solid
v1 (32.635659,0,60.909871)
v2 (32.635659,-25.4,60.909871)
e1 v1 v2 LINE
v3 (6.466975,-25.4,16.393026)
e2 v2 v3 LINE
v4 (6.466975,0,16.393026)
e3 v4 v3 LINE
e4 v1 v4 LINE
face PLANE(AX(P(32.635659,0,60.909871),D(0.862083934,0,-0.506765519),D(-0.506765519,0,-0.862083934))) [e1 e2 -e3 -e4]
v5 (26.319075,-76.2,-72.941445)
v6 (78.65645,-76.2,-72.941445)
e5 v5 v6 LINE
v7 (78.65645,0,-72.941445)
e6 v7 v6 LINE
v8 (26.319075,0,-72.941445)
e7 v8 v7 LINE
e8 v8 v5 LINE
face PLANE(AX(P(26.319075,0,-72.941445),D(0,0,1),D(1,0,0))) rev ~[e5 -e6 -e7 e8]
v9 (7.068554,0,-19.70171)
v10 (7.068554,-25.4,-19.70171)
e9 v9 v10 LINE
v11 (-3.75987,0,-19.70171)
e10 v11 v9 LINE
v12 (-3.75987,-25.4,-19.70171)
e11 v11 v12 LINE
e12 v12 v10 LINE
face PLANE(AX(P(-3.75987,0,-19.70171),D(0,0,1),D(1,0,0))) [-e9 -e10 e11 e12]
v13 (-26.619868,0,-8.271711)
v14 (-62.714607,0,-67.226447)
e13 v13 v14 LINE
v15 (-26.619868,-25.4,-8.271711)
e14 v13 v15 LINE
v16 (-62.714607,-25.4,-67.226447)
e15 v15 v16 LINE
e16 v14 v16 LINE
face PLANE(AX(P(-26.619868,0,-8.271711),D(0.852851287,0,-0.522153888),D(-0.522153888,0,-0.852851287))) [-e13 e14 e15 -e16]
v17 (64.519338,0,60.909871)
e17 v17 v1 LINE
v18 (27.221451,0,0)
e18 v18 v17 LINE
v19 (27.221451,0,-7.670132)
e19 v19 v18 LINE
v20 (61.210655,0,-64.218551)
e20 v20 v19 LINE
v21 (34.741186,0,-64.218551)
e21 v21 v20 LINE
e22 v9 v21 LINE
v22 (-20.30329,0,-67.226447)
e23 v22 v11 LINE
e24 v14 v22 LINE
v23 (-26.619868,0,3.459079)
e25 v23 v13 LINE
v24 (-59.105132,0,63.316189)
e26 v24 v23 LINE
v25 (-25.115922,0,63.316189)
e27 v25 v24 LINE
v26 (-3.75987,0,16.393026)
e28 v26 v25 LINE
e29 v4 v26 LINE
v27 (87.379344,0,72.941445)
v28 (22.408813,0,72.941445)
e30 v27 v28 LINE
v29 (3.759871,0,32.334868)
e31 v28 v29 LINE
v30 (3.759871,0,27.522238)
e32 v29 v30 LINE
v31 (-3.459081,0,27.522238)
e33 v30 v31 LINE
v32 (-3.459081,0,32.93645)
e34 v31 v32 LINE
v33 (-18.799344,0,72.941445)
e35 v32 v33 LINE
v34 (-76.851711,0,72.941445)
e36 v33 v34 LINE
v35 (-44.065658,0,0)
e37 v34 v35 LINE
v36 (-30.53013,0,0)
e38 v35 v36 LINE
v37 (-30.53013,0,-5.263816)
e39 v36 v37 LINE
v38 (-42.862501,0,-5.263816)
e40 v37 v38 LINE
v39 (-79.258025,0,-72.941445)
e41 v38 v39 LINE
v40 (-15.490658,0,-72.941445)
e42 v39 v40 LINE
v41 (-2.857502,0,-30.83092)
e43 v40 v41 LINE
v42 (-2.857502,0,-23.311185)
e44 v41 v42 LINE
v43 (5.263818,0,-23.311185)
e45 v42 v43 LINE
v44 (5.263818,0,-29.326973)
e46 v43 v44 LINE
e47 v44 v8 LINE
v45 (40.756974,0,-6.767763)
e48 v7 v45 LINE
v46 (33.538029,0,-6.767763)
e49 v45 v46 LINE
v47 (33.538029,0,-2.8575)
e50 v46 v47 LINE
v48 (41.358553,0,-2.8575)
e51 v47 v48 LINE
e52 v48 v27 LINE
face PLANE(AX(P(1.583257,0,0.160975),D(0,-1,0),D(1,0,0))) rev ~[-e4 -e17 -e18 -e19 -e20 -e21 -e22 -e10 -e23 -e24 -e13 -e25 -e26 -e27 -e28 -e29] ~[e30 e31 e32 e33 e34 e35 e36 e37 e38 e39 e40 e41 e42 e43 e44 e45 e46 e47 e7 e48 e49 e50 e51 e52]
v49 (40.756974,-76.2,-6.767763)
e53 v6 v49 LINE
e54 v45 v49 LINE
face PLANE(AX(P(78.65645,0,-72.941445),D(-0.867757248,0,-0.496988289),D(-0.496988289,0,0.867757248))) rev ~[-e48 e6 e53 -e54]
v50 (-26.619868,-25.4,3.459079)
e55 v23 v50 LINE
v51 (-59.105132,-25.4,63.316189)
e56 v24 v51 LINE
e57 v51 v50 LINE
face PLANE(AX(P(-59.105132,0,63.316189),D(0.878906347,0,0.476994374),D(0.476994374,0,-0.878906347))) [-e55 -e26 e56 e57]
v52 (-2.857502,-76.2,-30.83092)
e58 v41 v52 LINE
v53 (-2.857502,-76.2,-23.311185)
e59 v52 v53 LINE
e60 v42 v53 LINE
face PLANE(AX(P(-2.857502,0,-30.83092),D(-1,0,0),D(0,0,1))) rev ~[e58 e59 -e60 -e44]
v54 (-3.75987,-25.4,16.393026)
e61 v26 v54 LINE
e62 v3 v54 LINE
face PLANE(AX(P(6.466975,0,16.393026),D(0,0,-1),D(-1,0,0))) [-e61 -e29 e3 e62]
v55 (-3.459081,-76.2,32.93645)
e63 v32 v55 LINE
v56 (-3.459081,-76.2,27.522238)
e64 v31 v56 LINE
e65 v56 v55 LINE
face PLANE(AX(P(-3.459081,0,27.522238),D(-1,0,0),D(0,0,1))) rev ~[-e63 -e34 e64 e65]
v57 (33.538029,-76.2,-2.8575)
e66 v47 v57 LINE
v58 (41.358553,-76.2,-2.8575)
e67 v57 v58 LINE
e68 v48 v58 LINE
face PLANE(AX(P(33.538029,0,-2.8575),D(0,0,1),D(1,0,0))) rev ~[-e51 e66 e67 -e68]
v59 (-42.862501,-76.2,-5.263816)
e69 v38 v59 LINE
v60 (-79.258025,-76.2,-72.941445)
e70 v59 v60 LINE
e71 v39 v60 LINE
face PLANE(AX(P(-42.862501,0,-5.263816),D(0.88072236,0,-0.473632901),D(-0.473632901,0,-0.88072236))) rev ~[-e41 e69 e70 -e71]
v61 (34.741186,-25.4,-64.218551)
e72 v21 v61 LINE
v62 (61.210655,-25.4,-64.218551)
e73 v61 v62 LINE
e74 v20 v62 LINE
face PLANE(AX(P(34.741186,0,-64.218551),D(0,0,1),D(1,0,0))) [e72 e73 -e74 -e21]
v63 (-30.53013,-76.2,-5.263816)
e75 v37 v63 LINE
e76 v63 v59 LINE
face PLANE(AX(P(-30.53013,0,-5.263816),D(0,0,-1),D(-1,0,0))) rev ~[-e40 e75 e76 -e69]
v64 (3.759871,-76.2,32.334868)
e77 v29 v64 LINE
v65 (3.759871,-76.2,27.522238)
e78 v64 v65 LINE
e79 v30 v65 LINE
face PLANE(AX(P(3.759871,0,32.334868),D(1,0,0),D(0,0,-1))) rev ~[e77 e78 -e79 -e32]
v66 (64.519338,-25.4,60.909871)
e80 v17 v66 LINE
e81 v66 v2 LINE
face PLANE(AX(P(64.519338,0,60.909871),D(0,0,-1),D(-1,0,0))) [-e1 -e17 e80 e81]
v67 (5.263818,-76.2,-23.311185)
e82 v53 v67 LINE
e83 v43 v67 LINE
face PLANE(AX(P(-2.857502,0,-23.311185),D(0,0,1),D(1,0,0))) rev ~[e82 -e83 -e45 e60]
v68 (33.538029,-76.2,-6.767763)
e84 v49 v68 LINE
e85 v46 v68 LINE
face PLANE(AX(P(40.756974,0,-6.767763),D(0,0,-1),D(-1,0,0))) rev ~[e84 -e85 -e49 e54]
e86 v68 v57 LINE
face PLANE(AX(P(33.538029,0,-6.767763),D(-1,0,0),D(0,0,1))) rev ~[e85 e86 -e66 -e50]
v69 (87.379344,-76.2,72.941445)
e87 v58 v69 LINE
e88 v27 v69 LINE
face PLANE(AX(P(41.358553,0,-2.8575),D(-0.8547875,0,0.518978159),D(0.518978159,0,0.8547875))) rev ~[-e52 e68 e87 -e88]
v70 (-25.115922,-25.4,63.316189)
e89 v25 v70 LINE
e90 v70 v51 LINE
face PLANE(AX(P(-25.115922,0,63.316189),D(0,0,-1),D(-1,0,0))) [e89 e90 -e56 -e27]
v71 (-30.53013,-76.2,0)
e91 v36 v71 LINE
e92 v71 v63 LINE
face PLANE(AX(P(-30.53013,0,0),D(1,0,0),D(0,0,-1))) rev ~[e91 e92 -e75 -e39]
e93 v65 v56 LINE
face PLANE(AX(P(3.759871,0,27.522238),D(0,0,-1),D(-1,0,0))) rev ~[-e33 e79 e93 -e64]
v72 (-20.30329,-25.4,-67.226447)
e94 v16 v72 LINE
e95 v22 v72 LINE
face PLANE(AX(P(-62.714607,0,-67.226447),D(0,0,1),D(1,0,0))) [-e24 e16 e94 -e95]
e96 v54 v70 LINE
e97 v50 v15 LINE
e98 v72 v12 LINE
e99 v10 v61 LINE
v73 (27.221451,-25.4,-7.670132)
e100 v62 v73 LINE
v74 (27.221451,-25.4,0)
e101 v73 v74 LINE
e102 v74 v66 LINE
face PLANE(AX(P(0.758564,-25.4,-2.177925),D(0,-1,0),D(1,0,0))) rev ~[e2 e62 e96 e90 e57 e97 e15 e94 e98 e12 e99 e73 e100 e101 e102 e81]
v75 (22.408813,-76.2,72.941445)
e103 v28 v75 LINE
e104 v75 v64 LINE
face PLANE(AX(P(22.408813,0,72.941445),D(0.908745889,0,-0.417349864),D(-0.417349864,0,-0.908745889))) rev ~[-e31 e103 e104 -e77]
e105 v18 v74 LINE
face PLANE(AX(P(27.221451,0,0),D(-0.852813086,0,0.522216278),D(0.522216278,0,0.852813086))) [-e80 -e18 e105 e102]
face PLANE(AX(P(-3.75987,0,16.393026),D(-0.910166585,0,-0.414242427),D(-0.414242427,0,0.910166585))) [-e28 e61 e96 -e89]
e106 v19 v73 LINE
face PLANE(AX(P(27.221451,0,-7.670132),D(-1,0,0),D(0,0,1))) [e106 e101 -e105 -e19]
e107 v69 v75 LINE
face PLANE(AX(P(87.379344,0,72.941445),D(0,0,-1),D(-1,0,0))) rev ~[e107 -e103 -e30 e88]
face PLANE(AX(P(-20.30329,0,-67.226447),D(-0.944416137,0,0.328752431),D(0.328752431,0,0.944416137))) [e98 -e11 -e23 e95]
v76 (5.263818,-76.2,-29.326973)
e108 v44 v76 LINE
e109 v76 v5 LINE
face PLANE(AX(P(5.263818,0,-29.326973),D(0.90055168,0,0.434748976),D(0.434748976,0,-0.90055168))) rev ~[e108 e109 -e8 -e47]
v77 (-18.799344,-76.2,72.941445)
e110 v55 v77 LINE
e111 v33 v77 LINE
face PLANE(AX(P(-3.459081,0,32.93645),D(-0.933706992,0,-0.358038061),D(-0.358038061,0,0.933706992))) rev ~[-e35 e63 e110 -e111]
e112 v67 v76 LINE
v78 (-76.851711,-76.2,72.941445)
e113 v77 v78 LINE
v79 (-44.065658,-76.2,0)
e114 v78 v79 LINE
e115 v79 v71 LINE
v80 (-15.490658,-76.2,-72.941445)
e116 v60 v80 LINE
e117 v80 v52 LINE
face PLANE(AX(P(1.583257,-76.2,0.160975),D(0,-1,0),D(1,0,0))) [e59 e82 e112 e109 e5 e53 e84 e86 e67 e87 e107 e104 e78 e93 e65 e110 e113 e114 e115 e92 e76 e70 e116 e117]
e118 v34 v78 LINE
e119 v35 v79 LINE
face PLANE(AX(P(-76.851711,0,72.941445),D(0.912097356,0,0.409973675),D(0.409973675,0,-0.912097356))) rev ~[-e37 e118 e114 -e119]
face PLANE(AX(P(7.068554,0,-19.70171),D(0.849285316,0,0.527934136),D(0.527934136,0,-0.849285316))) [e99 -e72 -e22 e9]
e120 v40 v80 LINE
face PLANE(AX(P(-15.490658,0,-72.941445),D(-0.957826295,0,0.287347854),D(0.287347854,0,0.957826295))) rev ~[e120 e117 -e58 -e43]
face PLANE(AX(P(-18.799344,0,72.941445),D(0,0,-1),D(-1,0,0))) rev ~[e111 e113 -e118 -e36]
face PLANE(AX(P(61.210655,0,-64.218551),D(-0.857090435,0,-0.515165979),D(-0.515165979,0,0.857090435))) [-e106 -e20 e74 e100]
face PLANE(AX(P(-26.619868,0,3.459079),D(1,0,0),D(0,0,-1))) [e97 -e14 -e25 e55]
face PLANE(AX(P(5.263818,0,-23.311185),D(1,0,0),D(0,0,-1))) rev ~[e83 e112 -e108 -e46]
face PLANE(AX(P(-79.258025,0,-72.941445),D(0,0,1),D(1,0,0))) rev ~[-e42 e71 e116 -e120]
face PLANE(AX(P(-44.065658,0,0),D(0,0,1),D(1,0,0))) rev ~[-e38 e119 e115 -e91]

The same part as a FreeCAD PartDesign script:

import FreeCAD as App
import Part
import Sketcher
from FreeCAD import Vector
Q = App.Units.Quantity

doc = App.newDocument("Part")
body = doc.addObject("PartDesign::Body", "Body")

# Sketch on XZ plane
sketch1 = body.newObject("Sketcher::SketchObject", "Sketch")
sketch1.AttachmentSupport = (doc.getObject("XZ_Plane"), [""])
sketch1.MapMode = "FlatFace"
sketch1.addGeometry([
    Part.LineSegment(Vector(-18.8, 72.9, 0), Vector(-76.9, 72.9, 0)),  # 0
    Part.LineSegment(Vector(-76.9, 72.9, 0), Vector(-44.1, 0, 0)),  # 1
    Part.LineSegment(Vector(-44.1, 0, 0), Vector(-30.5, 0, 0)),  # 2
    Part.LineSegment(Vector(-30.5, 0, 0), Vector(-30.5, -5.3, 0)),  # 3
    Part.LineSegment(Vector(-30.5, -5.3, 0), Vector(-42.9, -5.3, 0)),  # 4
    Part.LineSegment(Vector(-42.9, -5.3, 0), Vector(-79.3, -72.9, 0)),  # 5
    Part.LineSegment(Vector(-79.3, -72.9, 0), Vector(-15.5, -72.9, 0)),  # 6
    Part.LineSegment(Vector(-15.5, -72.9, 0), Vector(-2.9, -30.8, 0)),  # 7
    Part.LineSegment(Vector(-2.9, -30.8, 0), Vector(-2.9, -23.3, 0)),  # 8
    Part.LineSegment(Vector(-2.9, -23.3, 0), Vector(5.3, -23.3, 0)),  # 9
    Part.LineSegment(Vector(5.3, -23.3, 0), Vector(5.3, -29.3, 0)),  # 10
    Part.LineSegment(Vector(5.3, -29.3, 0), Vector(26.3, -72.9, 0)),  # 11
    Part.LineSegment(Vector(26.3, -72.9, 0), Vector(78.7, -72.9, 0)),  # 12
    Part.LineSegment(Vector(78.7, -72.9, 0), Vector(40.8, -6.8, 0)),  # 13
    Part.LineSegment(Vector(40.8, -6.8, 0), Vector(33.5, -6.8, 0)),  # 14
    Part.LineSegment(Vector(33.5, -6.8, 0), Vector(33.5, -2.9, 0)),  # 15
    Part.LineSegment(Vector(33.5, -2.9, 0), Vector(41.4, -2.9, 0)),  # 16
    Part.LineSegment(Vector(41.4, -2.9, 0), Vector(87.4, 72.9, 0)),  # 17
    Part.LineSegment(Vector(87.4, 72.9, 0), Vector(22.4, 72.9, 0)),  # 18
    Part.LineSegment(Vector(22.4, 72.9, 0), Vector(3.8, 32.3, 0)),  # 19
    Part.LineSegment(Vector(3.8, 32.3, 0), Vector(3.8, 27.5, 0)),  # 20
    Part.LineSegment(Vector(3.8, 27.5, 0), Vector(-3.5, 27.5, 0)),  # 21
    Part.LineSegment(Vector(-3.5, 27.5, 0), Vector(-3.5, 32.9, 0)),  # 22
    Part.LineSegment(Vector(-3.5, 32.9, 0), Vector(-18.8, 72.9, 0)),  # 23
], False)
sketch1.addConstraint([
    Sketcher.Constraint("Coincident", 0, 2, 1, 1),
    Sketcher.Constraint("Coincident", 1, 2, 2, 1),
    Sketcher.Constraint("Coincident", 2, 2, 3, 1),
    Sketcher.Constraint("Coincident", 3, 2, 4, 1),
    Sketcher.Constraint("Coincident", 4, 2, 5, 1),
    Sketcher.Constraint("Coincident", 5, 2, 6, 1),
    Sketcher.Constraint("Coincident", 6, 2, 7, 1),
    Sketcher.Constraint("Coincident", 7, 2, 8, 1),
    Sketcher.Constraint("Coincident", 8, 2, 9, 1),
    Sketcher.Constraint("Coincident", 9, 2, 10, 1),
    Sketcher.Constraint("Coincident", 10, 2, 11, 1),
    Sketcher.Constraint("Coincident", 11, 2, 12, 1),
    Sketcher.Constraint("Coincident", 12, 2, 13, 1),
    Sketcher.Constraint("Coincident", 13, 2, 14, 1),
    Sketcher.Constraint("Coincident", 14, 2, 15, 1),
    Sketcher.Constraint("Coincident", 15, 2, 16, 1),
    Sketcher.Constraint("Coincident", 16, 2, 17, 1),
    Sketcher.Constraint("Coincident", 17, 2, 18, 1),
    Sketcher.Constraint("Coincident", 18, 2, 19, 1),
    Sketcher.Constraint("Coincident", 19, 2, 20, 1),
    Sketcher.Constraint("Coincident", 20, 2, 21, 1),
    Sketcher.Constraint("Coincident", 21, 2, 22, 1),
    Sketcher.Constraint("Coincident", 22, 2, 23, 1),
    Sketcher.Constraint("Coincident", 23, 2, 0, 1),
    Sketcher.Constraint("Horizontal", 0),
    Sketcher.Constraint("Horizontal", 2),
    Sketcher.Constraint("Vertical", 3),
    Sketcher.Constraint("Horizontal", 4),
    Sketcher.Constraint("Horizontal", 6),
    Sketcher.Constraint("Vertical", 8),
    Sketcher.Constraint("Horizontal", 9),
    Sketcher.Constraint("Vertical", 10),
    Sketcher.Constraint("Horizontal", 12),
    Sketcher.Constraint("Horizontal", 14),
    Sketcher.Constraint("Vertical", 15),
    Sketcher.Constraint("Horizontal", 16),
    Sketcher.Constraint("Horizontal", 18),
    Sketcher.Constraint("Vertical", 20),
    Sketcher.Constraint("Horizontal", 21),
    Sketcher.Constraint("Vertical", 22),
    Sketcher.Constraint("PointOnObject", 1, 2, -1),
    Sketcher.Constraint("Horizontal", 6, 2, 11, 2),
    Sketcher.Constraint("Horizontal", 0, 2, 17, 2),
    Sketcher.Constraint("DistanceX", 2, 2, 19, 2, Q("1.35 in")),
    Sketcher.Constraint("DistanceY", 14, 2, 20, 2, Q("1.35 in")),
    Sketcher.Constraint("DistanceX", 4, 2, -1, 1, Q("1.6875 in")),
    Sketcher.Constraint("DistanceX", 1, 2, 6, 2, Q("1.125 in")),
    Sketcher.Constraint("DistanceX", 4, 2, 7, 2, Q("1.575 in")),
    Sketcher.Constraint("DistanceY", 22, 2, 23, 2, Q("1.5749998 in")),
    Sketcher.Constraint("DistanceY", 15, 2, -1, 1, Q("0.1125 in")),
    Sketcher.Constraint("DistanceX", 4, 2, 4, 1, Q("12.332371 mm")),
    Sketcher.Constraint("DistanceX", 9, 1, 9, 2, Q("8.12132 mm")),
    Sketcher.Constraint("DistanceX", 18, 2, 18, 1, Q("64.970531 mm")),
    Sketcher.Constraint("DistanceX", 21, 2, 21, 1, Q("7.218952 mm")),
    Sketcher.Constraint("DistanceY", 10, 2, 10, 1, Q("6.015788 mm")),
    Sketcher.Constraint("DistanceY", 20, 2, 20, 1, Q("4.81263 mm")),
    Sketcher.Constraint("DistanceY", 22, 1, 22, 2, Q("5.414212 mm")),
    Sketcher.Constraint("DistanceX", 11, 2, 13, 2, Q("14.437899 mm")),
    Sketcher.Constraint("Distance", 5, Q("76.843319 mm")),
    Sketcher.Constraint("Distance", 7, Q("43.964678 mm")),
    Sketcher.Constraint("Distance", 23, Q("42.845342 mm")),
    Sketcher.Constraint("DistanceX", 0, 2, 0, 1, Q("58.052367 mm")),
    Sketcher.Constraint("DistanceX", 2, 1, 2, 2, Q("13.535528 mm")),
    Sketcher.Constraint("DistanceX", 6, 1, 6, 2, Q("63.767367 mm")),
    Sketcher.Constraint("DistanceX", 12, 1, 12, 2, Q("52.337375 mm")),
    Sketcher.Constraint("DistanceX", 14, 2, 14, 1, Q("7.218945 mm")),
    Sketcher.Constraint("DistanceX", 16, 1, 16, 2, Q("7.820524 mm")),
    Sketcher.Constraint("DistanceY", 3, 2, 3, 1, Q("5.263816 mm")),
    Sketcher.Constraint("DistanceY", 8, 1, 8, 2, Q("7.519735 mm")),
    Sketcher.Constraint("DistanceY", 15, 1, 15, 2, Q("3.910263 mm")),
    Sketcher.Constraint("DistanceX", -1, 1, 12, 2, Q("78.65645 mm")),
    Sketcher.Constraint("DistanceX", 16, 2, 17, 2, Q("46.020791 mm")),
])
pad1 = body.newObject("PartDesign::Pad", "Pad")
pad1.Profile = sketch1
pad1.Length = Q("3 in")

# Sketch on XZ plane
sketch2 = body.newObject("Sketcher::SketchObject", "Sketch001")
sketch2.AttachmentSupport = (doc.getObject("XZ_Plane"), [""])
sketch2.MapMode = "FlatFace"
sketch2.addGeometry([
    Part.LineSegment(Vector(-25, 63, 0), Vector(-59, 63, 0)),  # 0
    Part.LineSegment(Vector(-59, 63, 0), Vector(-27, 3, 0)),  # 1
    Part.LineSegment(Vector(-27, 3, 0), Vector(-27, -8, 0)),  # 2
    Part.LineSegment(Vector(-27, -8, 0), Vector(-63, -67, 0)),  # 3
    Part.LineSegment(Vector(-63, -67, 0), Vector(-20, -67, 0)),  # 4
    Part.LineSegment(Vector(-20, -67, 0), Vector(-4, -20, 0)),  # 5
    Part.LineSegment(Vector(-4, -20, 0), Vector(7, -20, 0)),  # 6
    Part.LineSegment(Vector(7, -20, 0), Vector(35, -64, 0)),  # 7
    Part.LineSegment(Vector(35, -64, 0), Vector(61, -64, 0)),  # 8
    Part.LineSegment(Vector(61, -64, 0), Vector(27, -8, 0)),  # 9
    Part.LineSegment(Vector(27, -8, 0), Vector(27, 0, 0)),  # 10
    Part.LineSegment(Vector(27, 0, 0), Vector(65, 61, 0)),  # 11
    Part.LineSegment(Vector(65, 61, 0), Vector(33, 61, 0)),  # 12
    Part.LineSegment(Vector(33, 61, 0), Vector(6, 16, 0)),  # 13
    Part.LineSegment(Vector(6, 16, 0), Vector(-4, 16, 0)),  # 14
    Part.LineSegment(Vector(-4, 16, 0), Vector(-25, 63, 0)),  # 15
], False)
sketch2.addConstraint([
    Sketcher.Constraint("Coincident", 0, 2, 1, 1),
    Sketcher.Constraint("Coincident", 1, 2, 2, 1),
    Sketcher.Constraint("Coincident", 2, 2, 3, 1),
    Sketcher.Constraint("Coincident", 3, 2, 4, 1),
    Sketcher.Constraint("Coincident", 4, 2, 5, 1),
    Sketcher.Constraint("Coincident", 5, 2, 6, 1),
    Sketcher.Constraint("Coincident", 6, 2, 7, 1),
    Sketcher.Constraint("Coincident", 7, 2, 8, 1),
    Sketcher.Constraint("Coincident", 8, 2, 9, 1),
    Sketcher.Constraint("Coincident", 9, 2, 10, 1),
    Sketcher.Constraint("Coincident", 10, 2, 11, 1),
    Sketcher.Constraint("Coincident", 11, 2, 12, 1),
    Sketcher.Constraint("Coincident", 12, 2, 13, 1),
    Sketcher.Constraint("Coincident", 13, 2, 14, 1),
    Sketcher.Constraint("Coincident", 14, 2, 15, 1),
    Sketcher.Constraint("Coincident", 15, 2, 0, 1),
    Sketcher.Constraint("Horizontal", 0),
    Sketcher.Constraint("Vertical", 2),
    Sketcher.Constraint("Horizontal", 4),
    Sketcher.Constraint("Horizontal", 6),
    Sketcher.Constraint("Horizontal", 8),
    Sketcher.Constraint("Vertical", 10),
    Sketcher.Constraint("Horizontal", 12),
    Sketcher.Constraint("Horizontal", 14),
    Sketcher.Constraint("PointOnObject", 10, 2, -1),
    Sketcher.Constraint("Vertical", 5, 2, 14, 2),
    Sketcher.Constraint("DistanceX", 2, 2, 5, 2, Q("0.8999999 in")),
    Sketcher.Constraint("DistanceY", 9, 2, 11, 2, Q("2.7000001 in")),
    Sketcher.Constraint("DistanceY", 5, 2, 2, 2, Q("0.45 in")),
    Sketcher.Constraint("Distance", 11, Q("71.422299 mm")),
    Sketcher.Constraint("DistanceX", 0, 2, 0, 1, Q("33.98921 mm")),
    Sketcher.Constraint("DistanceX", 8, 1, 8, 2, Q("26.469469 mm")),
    Sketcher.Constraint("DistanceX", 12, 2, 12, 1, Q("31.883679 mm")),
    Sketcher.Constraint("DistanceY", 2, 2, 2, 1, Q("11.73079 mm")),
    Sketcher.Constraint("DistanceY", 10, 1, 10, 2, Q("7.670132 mm")),
    Sketcher.Constraint("DistanceY", 2, 2, 0, 2, Q("71.5879 mm")),
    Sketcher.Constraint("DistanceX", 6, 2, 8, 2, Q("54.142101 mm")),
    Sketcher.Constraint("Distance", 3, Q("69.126631 mm")),
    Sketcher.Constraint("Distance", 5, Q("50.321818 mm")),
    Sketcher.Constraint("Distance", 9, Q("65.977191 mm")),
    Sketcher.Constraint("DistanceX", 4, 1, 4, 2, Q("42.411317 mm")),
    Sketcher.Constraint("DistanceX", 6, 1, 6, 2, Q("10.828424 mm")),
    Sketcher.Constraint("DistanceX", 14, 2, 14, 1, Q("10.226845 mm")),
    Sketcher.Constraint("DistanceX", 0, 2, -1, 1, Q("59.105132 mm")),
    Sketcher.Constraint("DistanceY", -1, 1, 0, 2, Q("63.316189 mm")),
    Sketcher.Constraint("DistanceX", 1, 2, -1, 1, Q("26.619868 mm")),
    Sketcher.Constraint("DistanceY", 7, 2, -1, 1, Q("64.218551 mm")),
    Sketcher.Constraint("Distance", 13, Q("51.638644 mm")),
])
pocket1 = body.newObject("PartDesign::Pocket", "Pocket")
pocket1.Profile = sketch2
pocket1.Length = Q("1 in")
pocket1.Reversed = True

doc.recompute()
